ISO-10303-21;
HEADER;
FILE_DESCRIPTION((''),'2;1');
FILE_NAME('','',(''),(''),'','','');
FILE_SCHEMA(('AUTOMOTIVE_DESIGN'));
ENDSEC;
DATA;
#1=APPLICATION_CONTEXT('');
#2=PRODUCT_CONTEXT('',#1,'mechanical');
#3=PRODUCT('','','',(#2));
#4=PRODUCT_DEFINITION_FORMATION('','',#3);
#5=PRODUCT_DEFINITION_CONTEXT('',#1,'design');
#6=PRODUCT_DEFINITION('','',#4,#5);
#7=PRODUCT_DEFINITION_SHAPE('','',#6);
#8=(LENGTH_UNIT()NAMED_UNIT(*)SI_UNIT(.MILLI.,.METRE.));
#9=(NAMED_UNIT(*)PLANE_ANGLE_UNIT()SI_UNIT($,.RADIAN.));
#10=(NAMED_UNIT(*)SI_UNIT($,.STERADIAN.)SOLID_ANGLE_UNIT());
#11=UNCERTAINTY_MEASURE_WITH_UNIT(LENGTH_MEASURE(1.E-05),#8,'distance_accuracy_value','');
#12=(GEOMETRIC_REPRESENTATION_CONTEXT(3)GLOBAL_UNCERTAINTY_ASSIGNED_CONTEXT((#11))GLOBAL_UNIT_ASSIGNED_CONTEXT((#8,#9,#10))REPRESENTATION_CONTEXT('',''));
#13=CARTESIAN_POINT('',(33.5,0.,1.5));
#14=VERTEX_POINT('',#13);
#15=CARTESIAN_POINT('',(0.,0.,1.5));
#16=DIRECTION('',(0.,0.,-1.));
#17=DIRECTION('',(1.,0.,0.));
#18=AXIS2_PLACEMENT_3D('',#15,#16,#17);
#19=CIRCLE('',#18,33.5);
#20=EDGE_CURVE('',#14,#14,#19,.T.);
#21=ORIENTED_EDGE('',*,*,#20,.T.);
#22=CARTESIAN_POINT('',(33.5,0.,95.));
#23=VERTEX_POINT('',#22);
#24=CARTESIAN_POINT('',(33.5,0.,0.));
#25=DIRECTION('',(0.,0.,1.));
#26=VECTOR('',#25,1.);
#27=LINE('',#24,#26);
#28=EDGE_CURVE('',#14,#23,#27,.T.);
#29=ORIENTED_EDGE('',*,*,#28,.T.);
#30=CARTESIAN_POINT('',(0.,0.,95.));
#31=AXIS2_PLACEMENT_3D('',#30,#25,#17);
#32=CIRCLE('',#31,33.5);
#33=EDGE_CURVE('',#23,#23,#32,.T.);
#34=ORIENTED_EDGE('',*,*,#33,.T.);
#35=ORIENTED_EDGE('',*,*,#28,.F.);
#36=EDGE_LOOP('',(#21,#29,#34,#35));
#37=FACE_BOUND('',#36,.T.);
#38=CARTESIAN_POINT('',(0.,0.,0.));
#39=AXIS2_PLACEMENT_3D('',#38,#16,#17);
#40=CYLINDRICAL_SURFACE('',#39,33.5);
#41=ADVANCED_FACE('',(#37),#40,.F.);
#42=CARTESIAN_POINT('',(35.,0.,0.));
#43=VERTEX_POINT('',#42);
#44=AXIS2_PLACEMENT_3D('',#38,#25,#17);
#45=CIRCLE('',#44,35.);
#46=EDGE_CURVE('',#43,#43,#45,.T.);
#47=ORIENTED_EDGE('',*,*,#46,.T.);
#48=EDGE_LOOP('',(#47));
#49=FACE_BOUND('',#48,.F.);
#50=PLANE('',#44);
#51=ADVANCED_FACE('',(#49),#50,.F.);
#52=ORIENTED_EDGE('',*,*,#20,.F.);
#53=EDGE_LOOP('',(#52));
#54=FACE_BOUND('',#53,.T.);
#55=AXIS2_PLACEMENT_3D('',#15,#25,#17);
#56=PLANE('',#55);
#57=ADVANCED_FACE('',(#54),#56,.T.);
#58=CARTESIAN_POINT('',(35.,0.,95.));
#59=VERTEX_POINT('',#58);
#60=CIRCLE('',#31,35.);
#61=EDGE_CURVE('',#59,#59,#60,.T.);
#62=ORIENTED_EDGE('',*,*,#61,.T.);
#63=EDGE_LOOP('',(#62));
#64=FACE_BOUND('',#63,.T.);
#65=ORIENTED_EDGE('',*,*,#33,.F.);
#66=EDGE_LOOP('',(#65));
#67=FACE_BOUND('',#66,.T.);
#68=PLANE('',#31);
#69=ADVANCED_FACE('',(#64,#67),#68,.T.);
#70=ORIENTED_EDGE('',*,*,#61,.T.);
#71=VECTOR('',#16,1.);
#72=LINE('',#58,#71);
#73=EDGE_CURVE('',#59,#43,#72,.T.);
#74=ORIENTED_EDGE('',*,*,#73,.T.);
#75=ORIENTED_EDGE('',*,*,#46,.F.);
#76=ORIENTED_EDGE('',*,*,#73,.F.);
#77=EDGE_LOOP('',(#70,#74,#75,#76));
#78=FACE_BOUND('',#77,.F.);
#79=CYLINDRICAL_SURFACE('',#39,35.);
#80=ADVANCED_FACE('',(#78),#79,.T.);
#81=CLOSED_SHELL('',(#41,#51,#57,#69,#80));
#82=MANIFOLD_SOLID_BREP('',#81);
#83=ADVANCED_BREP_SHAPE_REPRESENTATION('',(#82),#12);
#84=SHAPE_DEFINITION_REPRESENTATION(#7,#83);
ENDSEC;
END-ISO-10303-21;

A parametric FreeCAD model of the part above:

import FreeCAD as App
import Part
import Sketcher

V = App.Vector


def faces_at(feature, points):
    """Names of the faces that lie closest to the given points."""
    faces = feature.Shape.Faces
    near = lambda p: min(range(len(faces)), key=lambda i: faces[i].distToShape(Part.Vertex(*p))[0])
    return sorted({f"Face{near(p) + 1}" for p in points})

doc = App.newDocument("Part")
body = doc.addObject("PartDesign::Body", "Body")

# Sketch on XY plane
sketch1 = body.newObject("Sketcher::SketchObject", "Sketch")
sketch1.AttachmentSupport = (doc.getObject("XY_Plane"), [""])
sketch1.MapMode = "FlatFace"
sketch1.addGeometry(Part.Circle(V(0, 0, 0), V(0, 0, 1), 35), False)
sketch1.addConstraint([
    Sketcher.Constraint("Coincident", 0, 3, -1, 1),
    Sketcher.Constraint("Diameter", 0, 70.0),
])
pad1 = body.newObject("PartDesign::Pad", "Pad")
pad1.Profile = sketch1
pad1.Length = 95
doc.recompute()

thickness = body.newObject("PartDesign::Thickness", "Thickness")
thickness.Base = (pad1, faces_at(pad1, [(0, 0, 95)]))
thickness.Value = 1.5
thickness.Reversed = True
thickness.Join = "Arc"

# Sketch on XY plane
sketch2 = body.newObject("Sketcher::SketchObject", "Sketch001")
sketch2.AttachmentSupport = (doc.getObject("XY_Plane"), [""])
sketch2.MapMode = "FlatFace"
sketch2.addGeometry(Part.Circle(V(0, 0, 0), V(0, 0, 1), 35), False)
sketch2.addConstraint([
    Sketcher.Constraint("Coincident", 0, 3, -1, 1),
    Sketcher.Constraint("Diameter", 0, 70.0),
])
pad2 = body.newObject("PartDesign::Pad", "Pad001")
pad2.Profile = sketch2
pad2.Length = 1.5

doc.recompute()
